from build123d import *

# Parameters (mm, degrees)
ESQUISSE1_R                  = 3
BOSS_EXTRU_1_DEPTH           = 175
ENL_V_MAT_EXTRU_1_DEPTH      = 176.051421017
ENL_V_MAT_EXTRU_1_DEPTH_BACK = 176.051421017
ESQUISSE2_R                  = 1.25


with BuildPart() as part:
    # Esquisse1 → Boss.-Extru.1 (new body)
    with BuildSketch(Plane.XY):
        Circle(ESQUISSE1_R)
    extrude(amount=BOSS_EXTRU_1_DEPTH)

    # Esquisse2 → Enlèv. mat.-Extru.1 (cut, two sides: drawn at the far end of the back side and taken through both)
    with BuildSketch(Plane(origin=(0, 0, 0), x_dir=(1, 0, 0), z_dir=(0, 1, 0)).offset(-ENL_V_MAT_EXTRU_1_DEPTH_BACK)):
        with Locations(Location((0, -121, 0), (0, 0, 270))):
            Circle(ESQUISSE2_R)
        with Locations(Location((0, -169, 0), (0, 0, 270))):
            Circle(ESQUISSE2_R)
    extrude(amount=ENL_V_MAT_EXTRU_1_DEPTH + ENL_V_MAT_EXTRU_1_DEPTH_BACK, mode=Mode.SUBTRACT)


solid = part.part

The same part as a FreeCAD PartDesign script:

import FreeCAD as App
import Part
import Sketcher
from FreeCAD import Vector
Q = App.Units.Quantity

doc = App.newDocument("Part")
body = doc.addObject("PartDesign::Body", "Body")

# Sketch on XY plane
sketch1 = body.newObject("Sketcher::SketchObject", "Sketch")
sketch1.AttachmentSupport = (doc.getObject("XY_Plane"), [""])
sketch1.MapMode = "FlatFace"
sketch1.addGeometry(Part.Circle(Vector(0, 0, 0), Vector(0, 0, 1), 3), False)
sketch1.addConstraint(Sketcher.Constraint("Coincident", 0, 3, -1, 1))
sketch1.addConstraint(Sketcher.Constraint("Diameter", 0, Q("6 mm")))
pad1 = body.newObject("PartDesign::Pad", "Pad")
pad1.Profile = sketch1
pad1.Length = 175

# Sketch on XZ plane
sketch2 = body.newObject("Sketcher::SketchObject", "Sketch001")
sketch2.AttachmentSupport = (doc.getObject("XZ_Plane"), [""])
sketch2.MapMode = "FlatFace"
sketch2.addGeometry(Part.Circle(Vector(0, 121, 0), Vector(0, 0, 1), 1.2), False)
sketch2.addGeometry(Part.Circle(Vector(0, 169, 0), Vector(0, 0, 1), 1.2), False)
sketch2.addConstraint(Sketcher.Constraint("Equal", 0, 1))
sketch2.addConstraint(Sketcher.Constraint("PointOnObject", 0, 3, -2))
sketch2.addConstraint(Sketcher.Constraint("PointOnObject", 1, 3, -2))
sketch2.addConstraint(Sketcher.Constraint("Diameter", 0, Q("2.5 mm")))
sketch2.addConstraint(Sketcher.Constraint("DistanceY", -1, 1, 0, 3, Q("121 mm")))
sketch2.addConstraint(Sketcher.Constraint("DistanceY", -1, 1, 1, 3, Q("169 mm")))
pocket1 = body.newObject("PartDesign::Pocket", "Pocket")
pocket1.Profile = sketch2
pocket1.Type = "ThroughAll"
pocket1.Midplane = True

doc.recompute()
